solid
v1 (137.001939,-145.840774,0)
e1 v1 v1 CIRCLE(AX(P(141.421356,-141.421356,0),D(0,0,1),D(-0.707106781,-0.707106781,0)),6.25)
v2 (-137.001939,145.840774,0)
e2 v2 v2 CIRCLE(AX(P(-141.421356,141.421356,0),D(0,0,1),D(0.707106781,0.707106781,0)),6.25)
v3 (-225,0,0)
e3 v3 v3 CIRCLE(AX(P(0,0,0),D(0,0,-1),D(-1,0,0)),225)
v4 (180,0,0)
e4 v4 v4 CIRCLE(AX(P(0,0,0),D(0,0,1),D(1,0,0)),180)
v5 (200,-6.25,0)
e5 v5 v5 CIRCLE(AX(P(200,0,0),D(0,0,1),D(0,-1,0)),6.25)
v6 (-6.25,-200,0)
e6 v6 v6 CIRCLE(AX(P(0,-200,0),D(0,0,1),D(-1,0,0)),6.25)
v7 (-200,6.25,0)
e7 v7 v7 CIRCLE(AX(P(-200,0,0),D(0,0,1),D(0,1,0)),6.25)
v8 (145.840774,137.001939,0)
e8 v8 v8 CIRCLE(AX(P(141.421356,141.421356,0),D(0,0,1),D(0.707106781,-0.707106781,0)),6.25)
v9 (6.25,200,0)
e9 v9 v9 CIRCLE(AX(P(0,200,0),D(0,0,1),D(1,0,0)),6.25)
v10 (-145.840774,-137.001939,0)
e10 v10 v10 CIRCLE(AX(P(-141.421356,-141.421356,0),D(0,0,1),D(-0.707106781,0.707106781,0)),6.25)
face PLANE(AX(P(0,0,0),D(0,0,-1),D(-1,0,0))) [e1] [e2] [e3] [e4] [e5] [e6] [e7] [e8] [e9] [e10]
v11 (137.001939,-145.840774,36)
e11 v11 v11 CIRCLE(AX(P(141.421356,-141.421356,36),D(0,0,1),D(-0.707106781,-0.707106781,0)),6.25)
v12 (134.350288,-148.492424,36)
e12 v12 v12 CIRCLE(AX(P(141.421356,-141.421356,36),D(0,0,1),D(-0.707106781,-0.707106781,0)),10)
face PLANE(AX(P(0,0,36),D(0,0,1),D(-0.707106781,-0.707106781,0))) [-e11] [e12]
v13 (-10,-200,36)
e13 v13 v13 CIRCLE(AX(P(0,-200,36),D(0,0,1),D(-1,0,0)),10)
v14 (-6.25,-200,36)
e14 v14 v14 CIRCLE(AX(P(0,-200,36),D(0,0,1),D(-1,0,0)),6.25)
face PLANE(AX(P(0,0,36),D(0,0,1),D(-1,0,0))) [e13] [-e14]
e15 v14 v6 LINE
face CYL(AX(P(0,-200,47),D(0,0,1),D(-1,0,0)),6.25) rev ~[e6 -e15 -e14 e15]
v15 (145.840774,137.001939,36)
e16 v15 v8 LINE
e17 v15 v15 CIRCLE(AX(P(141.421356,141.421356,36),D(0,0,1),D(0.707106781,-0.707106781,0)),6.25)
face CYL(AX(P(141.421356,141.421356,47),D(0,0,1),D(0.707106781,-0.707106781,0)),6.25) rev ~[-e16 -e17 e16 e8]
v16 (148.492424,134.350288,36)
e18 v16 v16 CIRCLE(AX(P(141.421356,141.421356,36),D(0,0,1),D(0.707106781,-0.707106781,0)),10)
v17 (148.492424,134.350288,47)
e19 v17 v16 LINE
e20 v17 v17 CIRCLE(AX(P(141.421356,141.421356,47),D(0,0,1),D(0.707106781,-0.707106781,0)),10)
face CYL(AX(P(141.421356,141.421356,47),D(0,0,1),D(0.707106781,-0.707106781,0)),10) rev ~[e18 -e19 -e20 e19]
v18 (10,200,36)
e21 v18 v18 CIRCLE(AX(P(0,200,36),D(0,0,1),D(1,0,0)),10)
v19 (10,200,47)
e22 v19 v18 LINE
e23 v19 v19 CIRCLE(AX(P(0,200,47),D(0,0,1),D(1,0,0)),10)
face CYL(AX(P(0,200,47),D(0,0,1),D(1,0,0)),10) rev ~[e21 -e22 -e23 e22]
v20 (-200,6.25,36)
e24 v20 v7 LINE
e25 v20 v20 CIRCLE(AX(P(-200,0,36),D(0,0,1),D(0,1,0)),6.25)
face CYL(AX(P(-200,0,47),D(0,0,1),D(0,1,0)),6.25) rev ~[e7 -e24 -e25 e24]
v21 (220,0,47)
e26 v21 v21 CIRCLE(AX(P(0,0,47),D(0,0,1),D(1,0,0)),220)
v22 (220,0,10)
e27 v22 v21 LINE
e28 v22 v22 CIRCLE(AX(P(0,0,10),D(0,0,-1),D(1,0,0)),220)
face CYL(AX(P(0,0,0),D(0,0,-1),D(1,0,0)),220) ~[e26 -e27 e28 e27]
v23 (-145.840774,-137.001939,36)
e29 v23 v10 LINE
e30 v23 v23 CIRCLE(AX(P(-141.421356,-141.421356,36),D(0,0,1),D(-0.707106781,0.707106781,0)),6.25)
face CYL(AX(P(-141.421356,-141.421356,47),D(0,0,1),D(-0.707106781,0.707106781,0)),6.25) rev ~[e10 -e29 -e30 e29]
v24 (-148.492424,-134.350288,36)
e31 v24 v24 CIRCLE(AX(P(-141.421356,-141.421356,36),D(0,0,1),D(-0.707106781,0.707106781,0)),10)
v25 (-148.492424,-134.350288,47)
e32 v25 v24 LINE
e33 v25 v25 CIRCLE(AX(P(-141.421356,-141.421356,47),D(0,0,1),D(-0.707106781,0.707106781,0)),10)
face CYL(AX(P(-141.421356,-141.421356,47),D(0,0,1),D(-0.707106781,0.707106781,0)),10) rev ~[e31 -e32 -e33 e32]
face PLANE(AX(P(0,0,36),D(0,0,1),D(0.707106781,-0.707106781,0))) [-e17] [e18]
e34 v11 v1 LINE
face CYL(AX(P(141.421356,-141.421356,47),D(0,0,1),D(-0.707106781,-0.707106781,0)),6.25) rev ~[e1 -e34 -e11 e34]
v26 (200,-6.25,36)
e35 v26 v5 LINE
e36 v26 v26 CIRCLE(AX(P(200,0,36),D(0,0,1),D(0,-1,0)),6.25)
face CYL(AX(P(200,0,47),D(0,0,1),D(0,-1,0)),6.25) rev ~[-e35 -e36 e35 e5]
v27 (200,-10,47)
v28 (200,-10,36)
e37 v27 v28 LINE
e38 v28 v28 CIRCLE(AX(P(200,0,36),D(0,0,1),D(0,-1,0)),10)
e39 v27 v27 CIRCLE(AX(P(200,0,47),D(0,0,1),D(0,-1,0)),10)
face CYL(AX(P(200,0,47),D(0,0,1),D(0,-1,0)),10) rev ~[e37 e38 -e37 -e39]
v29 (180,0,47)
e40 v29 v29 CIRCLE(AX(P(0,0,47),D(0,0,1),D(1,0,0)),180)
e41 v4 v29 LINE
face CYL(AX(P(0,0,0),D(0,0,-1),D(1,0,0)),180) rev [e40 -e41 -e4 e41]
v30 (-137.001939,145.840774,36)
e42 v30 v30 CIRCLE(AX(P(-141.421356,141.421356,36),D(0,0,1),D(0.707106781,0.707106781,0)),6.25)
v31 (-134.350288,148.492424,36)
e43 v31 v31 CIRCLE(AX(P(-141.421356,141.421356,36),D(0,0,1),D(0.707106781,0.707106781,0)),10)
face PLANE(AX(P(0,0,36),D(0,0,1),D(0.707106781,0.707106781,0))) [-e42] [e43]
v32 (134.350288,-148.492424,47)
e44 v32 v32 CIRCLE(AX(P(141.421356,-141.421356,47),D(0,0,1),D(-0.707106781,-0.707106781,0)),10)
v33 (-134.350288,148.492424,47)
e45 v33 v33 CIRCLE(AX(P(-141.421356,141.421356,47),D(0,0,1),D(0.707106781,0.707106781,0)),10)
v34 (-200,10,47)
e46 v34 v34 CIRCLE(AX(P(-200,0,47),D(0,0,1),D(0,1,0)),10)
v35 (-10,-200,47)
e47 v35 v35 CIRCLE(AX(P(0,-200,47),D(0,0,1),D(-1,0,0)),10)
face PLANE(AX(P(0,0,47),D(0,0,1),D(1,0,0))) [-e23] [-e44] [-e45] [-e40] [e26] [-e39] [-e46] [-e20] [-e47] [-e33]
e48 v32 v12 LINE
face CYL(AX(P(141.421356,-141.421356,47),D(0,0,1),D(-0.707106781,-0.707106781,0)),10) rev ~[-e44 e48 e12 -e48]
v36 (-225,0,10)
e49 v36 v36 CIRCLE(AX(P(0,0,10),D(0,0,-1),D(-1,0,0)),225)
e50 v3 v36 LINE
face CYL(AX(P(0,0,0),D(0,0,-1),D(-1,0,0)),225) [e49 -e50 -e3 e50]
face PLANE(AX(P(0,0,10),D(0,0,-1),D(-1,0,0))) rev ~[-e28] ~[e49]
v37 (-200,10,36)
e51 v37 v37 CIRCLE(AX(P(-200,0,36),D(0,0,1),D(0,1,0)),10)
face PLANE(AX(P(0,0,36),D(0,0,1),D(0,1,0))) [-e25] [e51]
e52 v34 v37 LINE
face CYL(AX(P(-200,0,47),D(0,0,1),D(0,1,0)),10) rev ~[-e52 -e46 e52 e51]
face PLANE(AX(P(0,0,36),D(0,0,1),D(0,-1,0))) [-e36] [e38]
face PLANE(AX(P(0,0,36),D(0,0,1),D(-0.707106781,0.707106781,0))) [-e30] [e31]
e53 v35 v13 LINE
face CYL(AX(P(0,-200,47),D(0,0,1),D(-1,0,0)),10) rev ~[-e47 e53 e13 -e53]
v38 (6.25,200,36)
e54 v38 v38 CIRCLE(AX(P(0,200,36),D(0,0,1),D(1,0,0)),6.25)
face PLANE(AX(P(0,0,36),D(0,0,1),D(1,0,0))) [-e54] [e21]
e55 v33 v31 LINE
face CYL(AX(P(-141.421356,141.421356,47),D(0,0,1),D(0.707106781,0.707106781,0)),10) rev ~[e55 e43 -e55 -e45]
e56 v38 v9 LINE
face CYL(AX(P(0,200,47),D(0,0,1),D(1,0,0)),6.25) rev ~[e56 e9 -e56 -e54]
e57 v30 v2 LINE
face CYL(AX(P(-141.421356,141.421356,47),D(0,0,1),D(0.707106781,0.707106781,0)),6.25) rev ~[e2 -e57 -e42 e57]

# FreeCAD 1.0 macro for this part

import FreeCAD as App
import Part
import Sketcher

doc = App.newDocument("Part")
body = doc.addObject("PartDesign::Body", "Body")

# Sketch on XY plane
sketch1 = doc.addObject("Sketcher::SketchObject", "Sketch")
body.addObject(sketch1)
sketch1.AttachmentSupport = (doc.XY_Plane, [""])
sketch1.MapMode = "FlatFace"
sketch1.addGeometry(Part.Circle(App.Vector(0, 0, 0), App.Vector(0, 0, 1), 220), False)
sketch1.addGeometry(Part.Circle(App.Vector(0, 0, 0), App.Vector(0, 0, 1), 180), False)
sketch1.addConstraint(Sketcher.Constraint("Coincident", 0, 3, -1, 1))
sketch1.addConstraint(Sketcher.Constraint("Coincident", 1, 3, -1, 1))
sketch1.addConstraint(Sketcher.Constraint("Diameter", 1, 360.0))
sketch1.addConstraint(Sketcher.Constraint("Diameter", 0, 440.0))
pad1 = doc.addObject("PartDesign::Pad", "Pad")
body.addObject(pad1)
pad1.Profile = sketch1
pad1.Length = 47

# Sketch on XY plane
sketch2 = doc.addObject("Sketcher::SketchObject", "Sketch001")
body.addObject(sketch2)
sketch2.AttachmentSupport = (doc.XY_Plane, [""])
sketch2.MapMode = "FlatFace"
sketch2.AttachmentOffset = App.Placement(App.Vector(0, 0, 47), App.Rotation())
sketch2.addGeometry(Part.Circle(App.Vector(0, 200, 0), App.Vector(0, 0, 1), 6), False)
sketch2.addConstraint(Sketcher.Constraint("PointOnObject", 0, 3, -2))
sketch2.addConstraint(Sketcher.Constraint("Diameter", 0, 12.5))
sketch2.addConstraint(Sketcher.Constraint("DistanceY", -1, 1, 0, 3, 200.0))
pocket1 = doc.addObject("PartDesign::Pocket", "Pocket")
body.addObject(pocket1)
pocket1.Profile = sketch2
pocket1.Type = "ThroughAll"

# Sketch on XY plane
sketch3 = doc.addObject("Sketcher::SketchObject", "Sketch002")
body.addObject(sketch3)
sketch3.AttachmentSupport = (doc.XY_Plane, [""])
sketch3.MapMode = "FlatFace"
sketch3.AttachmentOffset = App.Placement(App.Vector(0, 0, 47), App.Rotation())
sketch3.addGeometry(Part.Circle(App.Vector(0, 200, 0), App.Vector(0, 0, 1), 10), False)
sketch3.addGeometry(Part.Circle(App.Vector(0, 200, 0), App.Vector(0, 0, 1), 6), False)
sketch3.addConstraint(Sketcher.Constraint("Coincident", 1, 3, 0, 3))
sketch3.addConstraint(Sketcher.Constraint("PointOnObject", 0, 3, -2))
sketch3.addConstraint(Sketcher.Constraint("Diameter", 0, 20.0))
sketch3.addConstraint(Sketcher.Constraint("Diameter", 1, 12.5))
sketch3.addConstraint(Sketcher.Constraint("DistanceY", -1, 1, 0, 3, 200.0))
pocket2 = doc.addObject("PartDesign::Pocket", "Pocket001")
body.addObject(pocket2)
pocket2.Profile = sketch3
pocket2.Length = 11
doc.recompute()

polarpattern = doc.addObject("PartDesign::PolarPattern", "PolarPattern")
body.addObject(polarpattern)
polarpattern.Originals = [pocket1, pocket2]
polarpattern.Axis = (doc.Z_Axis, [""])
polarpattern.Angle = 360
polarpattern.Occurrences = 8
body.Tip = polarpattern

# Sketch on XY plane
sketch4 = doc.addObject("Sketcher::SketchObject", "Sketch003")
body.addObject(sketch4)
sketch4.AttachmentSupport = (doc.XY_Plane, [""])
sketch4.MapMode = "FlatFace"
sketch4.addGeometry(Part.Circle(App.Vector(0, 0, 0), App.Vector(0, 0, 1), 225), False)
sketch4.addGeometry(Part.Circle(App.Vector(0, 0, 0), App.Vector(0, 0, 1), 220), False)
sketch4.addConstraint(Sketcher.Constraint("Coincident", 0, 3, -1, 1))
sketch4.addConstraint(Sketcher.Constraint("Coincident", 1, 3, -1, 1))
sketch4.addConstraint(Sketcher.Constraint("Diameter", 0, 450.0))
sketch4.addConstraint(Sketcher.Constraint("Diameter", 1, 440.0))
pad2 = doc.addObject("PartDesign::Pad", "Pad001")
body.addObject(pad2)
pad2.Profile = sketch4
pad2.Length = 10

doc.recompute()
